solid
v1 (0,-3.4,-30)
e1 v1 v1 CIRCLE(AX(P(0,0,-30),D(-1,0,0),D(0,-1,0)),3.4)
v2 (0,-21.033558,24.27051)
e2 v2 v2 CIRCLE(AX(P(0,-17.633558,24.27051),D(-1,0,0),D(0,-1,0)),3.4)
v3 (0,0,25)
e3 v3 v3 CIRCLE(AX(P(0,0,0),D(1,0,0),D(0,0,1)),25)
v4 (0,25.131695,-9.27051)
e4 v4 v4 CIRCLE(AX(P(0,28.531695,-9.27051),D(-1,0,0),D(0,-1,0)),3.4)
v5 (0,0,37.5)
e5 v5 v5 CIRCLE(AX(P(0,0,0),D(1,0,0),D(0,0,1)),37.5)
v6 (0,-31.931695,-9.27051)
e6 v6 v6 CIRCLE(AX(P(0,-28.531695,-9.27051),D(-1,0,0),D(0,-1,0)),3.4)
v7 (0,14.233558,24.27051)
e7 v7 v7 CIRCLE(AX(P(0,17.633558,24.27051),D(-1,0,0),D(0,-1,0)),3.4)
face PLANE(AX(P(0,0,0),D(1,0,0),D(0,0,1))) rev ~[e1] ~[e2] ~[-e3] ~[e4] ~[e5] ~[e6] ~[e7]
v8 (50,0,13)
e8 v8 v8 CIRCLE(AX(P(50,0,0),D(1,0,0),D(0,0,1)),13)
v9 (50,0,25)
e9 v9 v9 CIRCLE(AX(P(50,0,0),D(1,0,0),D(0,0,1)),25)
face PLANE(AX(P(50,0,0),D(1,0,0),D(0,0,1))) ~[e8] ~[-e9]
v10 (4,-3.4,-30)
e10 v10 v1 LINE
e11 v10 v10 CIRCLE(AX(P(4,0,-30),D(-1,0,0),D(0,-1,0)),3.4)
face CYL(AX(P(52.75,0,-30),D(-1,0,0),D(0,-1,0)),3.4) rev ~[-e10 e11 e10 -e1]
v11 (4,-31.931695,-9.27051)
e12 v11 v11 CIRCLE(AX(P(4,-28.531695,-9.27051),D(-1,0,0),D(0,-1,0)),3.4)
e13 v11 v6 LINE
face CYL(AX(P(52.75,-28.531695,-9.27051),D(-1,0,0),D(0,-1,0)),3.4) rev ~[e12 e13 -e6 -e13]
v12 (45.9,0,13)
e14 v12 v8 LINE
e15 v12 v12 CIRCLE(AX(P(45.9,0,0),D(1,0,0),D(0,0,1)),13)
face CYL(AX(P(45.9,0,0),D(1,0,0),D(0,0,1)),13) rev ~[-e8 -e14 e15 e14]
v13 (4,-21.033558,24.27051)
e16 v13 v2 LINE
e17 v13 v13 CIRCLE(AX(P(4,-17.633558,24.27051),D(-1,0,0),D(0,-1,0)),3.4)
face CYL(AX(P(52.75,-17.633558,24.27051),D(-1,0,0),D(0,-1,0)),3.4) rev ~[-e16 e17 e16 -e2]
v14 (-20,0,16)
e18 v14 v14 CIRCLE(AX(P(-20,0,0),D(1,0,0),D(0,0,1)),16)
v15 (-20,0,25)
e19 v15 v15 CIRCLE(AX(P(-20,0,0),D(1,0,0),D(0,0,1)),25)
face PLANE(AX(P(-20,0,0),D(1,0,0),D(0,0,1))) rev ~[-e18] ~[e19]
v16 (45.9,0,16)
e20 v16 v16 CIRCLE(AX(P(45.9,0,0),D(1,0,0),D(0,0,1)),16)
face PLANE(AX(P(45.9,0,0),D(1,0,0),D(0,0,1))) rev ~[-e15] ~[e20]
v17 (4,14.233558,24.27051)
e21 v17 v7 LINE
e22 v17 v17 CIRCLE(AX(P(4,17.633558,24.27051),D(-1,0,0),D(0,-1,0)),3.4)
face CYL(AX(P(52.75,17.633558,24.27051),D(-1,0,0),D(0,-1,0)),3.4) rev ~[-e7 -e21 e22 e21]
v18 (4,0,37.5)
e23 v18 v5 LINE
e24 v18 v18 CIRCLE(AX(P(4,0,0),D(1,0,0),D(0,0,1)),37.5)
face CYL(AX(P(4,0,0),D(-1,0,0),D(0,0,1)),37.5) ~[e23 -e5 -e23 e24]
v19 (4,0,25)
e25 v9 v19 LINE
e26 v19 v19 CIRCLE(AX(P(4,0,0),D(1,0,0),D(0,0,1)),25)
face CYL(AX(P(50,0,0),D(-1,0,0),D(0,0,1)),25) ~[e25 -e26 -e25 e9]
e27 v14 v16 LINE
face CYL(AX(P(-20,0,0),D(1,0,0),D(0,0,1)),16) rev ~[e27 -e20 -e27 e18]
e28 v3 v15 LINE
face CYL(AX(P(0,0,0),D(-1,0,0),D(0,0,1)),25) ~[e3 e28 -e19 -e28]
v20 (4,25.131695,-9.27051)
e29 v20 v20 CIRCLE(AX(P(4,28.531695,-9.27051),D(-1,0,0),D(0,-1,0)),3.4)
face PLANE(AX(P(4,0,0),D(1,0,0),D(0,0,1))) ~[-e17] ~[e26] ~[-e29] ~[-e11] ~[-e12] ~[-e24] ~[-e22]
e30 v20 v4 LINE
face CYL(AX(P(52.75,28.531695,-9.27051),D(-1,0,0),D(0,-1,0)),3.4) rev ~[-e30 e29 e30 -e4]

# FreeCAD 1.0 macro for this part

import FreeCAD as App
import Part
import Sketcher

V = App.Vector
Q = App.Units.Quantity

doc = App.newDocument("Part")
body = doc.addObject("PartDesign::Body", "Body")

sketch1 = body.newObject("Sketcher::SketchObject", "Sketch")
sketch1.AttachmentSupport = (doc.getObject("XZ_Plane"), [""])
sketch1.MapMode = "FlatFace"
sketch1.addGeometry([
    Part.LineSegment(V(4, 37.5, 0), V(0, 37.5, 0)),
    Part.LineSegment(V(0, 37.5, 0), V(0, 25, 0)),
    Part.LineSegment(V(0, 25, 0), V(-20, 25, 0)),
    Part.LineSegment(V(-20, 25, 0), V(-20, 16, 0)),
    Part.LineSegment(V(-20, 16, 0), V(45.9, 16, 0)),
    Part.LineSegment(V(45.9, 16, 0), V(45.9, 13, 0)),
    Part.LineSegment(V(45.9, 13, 0), V(50, 13, 0)),
    Part.LineSegment(V(50, 13, 0), V(50, 25, 0)),
    Part.LineSegment(V(50, 25, 0), V(4, 25, 0)),
    Part.LineSegment(V(4, 25, 0), V(4, 37.5, 0)),
], False)
sketch1.addConstraint([
    Sketcher.Constraint("Coincident", 0, 2, 1, 1),
    Sketcher.Constraint("Coincident", 1, 2, 2, 1),
    Sketcher.Constraint("Coincident", 2, 2, 3, 1),
    Sketcher.Constraint("Coincident", 3, 2, 4, 1),
    Sketcher.Constraint("Coincident", 4, 2, 5, 1),
    Sketcher.Constraint("Coincident", 5, 2, 6, 1),
    Sketcher.Constraint("Coincident", 6, 2, 7, 1),
    Sketcher.Constraint("Coincident", 7, 2, 8, 1),
    Sketcher.Constraint("Coincident", 8, 2, 9, 1),
    Sketcher.Constraint("Coincident", 9, 2, 0, 1),
    Sketcher.Constraint("Horizontal", 0),
    Sketcher.Constraint("Vertical", 1),
    Sketcher.Constraint("Horizontal", 2),
    Sketcher.Constraint("Vertical", 3),
    Sketcher.Constraint("Horizontal", 4),
    Sketcher.Constraint("Vertical", 5),
    Sketcher.Constraint("Horizontal", 6),
    Sketcher.Constraint("Vertical", 7),
    Sketcher.Constraint("Horizontal", 8),
    Sketcher.Constraint("Vertical", 9),
    Sketcher.Constraint("PointOnObject", 0, 2, -2),
    Sketcher.Constraint("Horizontal", 2, 2, 7, 2),
    Sketcher.Constraint("DistanceX", 0, 2, 0, 1, Q("4 mm")),
    Sketcher.Constraint("DistanceX", 2, 2, 2, 1, Q("20 mm")),
    Sketcher.Constraint("DistanceX", 8, 2, 8, 1, Q("46 mm")),
    Sketcher.Constraint("DistanceY", 3, 2, 3, 1, Q("9 mm")),
    Sketcher.Constraint("DistanceY", 5, 2, 5, 1, Q("3 mm")),
    Sketcher.Constraint("DistanceX", 4, 1, 4, 2, Q("65.9 mm")),
    Sketcher.Constraint("DistanceY", 1, 2, 1, 1, Q("12.5 mm")),
    Sketcher.Constraint("DistanceY", -1, 1, 1, 2, Q("25 mm")),
])
revolution = body.newObject("PartDesign::Revolution", "Revolution")
revolution.Profile = sketch1
revolution.ReferenceAxis = (sketch1, ["H_Axis"])
revolution.Angle = 360

sketch2 = body.newObject("Sketcher::SketchObject", "Sketch001")
sketch2.AttachmentSupport = (doc.getObject("YZ_Plane"), [""])
sketch2.MapMode = "FlatFace"
sketch2.AttachmentOffset = App.Placement(V(0, 0, 4), App.Rotation())
sketch2.addGeometry([
    Part.Circle(V(0, -30, 0), V(0, 0, 1), 3.4),
    Part.Circle(V(-28.5, -9.3, 0), V(0, 0, 1), 3.4),
    Part.Circle(V(17.6, 24.3, 0), V(0, 0, 1), 3.4),
    Part.Circle(V(-17.6, 24.3, 0), V(0, 0, 1), 3.4),
    Part.Circle(V(28.5, -9.3, 0), V(0, 0, 1), 3.4),
], False)
sketch2.addConstraint([
    Sketcher.Constraint("Equal", 0, 1),
    Sketcher.Constraint("Equal", 1, 2),
    Sketcher.Constraint("Equal", 2, 3),
    Sketcher.Constraint("Equal", 3, 4),
    Sketcher.Constraint("Symmetric", 2, 3, 3, 3, -2),
    Sketcher.Constraint("Symmetric", 1, 3, 4, 3, -2),
    Sketcher.Constraint("PointOnObject", 0, 3, -2),
    Sketcher.Constraint("Diameter", 0, Q("6.8 mm")),
    Sketcher.Constraint("DistanceY", 0, 3, -1, 1, Q("30 mm")),
    Sketcher.Constraint("DistanceY", 1, 3, -1, 1, Q("9.27051 mm")),
    Sketcher.Constraint("DistanceY", -1, 1, 2, 3, Q("24.27051 mm")),
    Sketcher.Constraint("DistanceX", 1, 3, 4, 3, Q("57.063391 mm")),
    Sketcher.Constraint("DistanceX", -1, 1, 2, 3, Q("17.633558 mm")),
])
doc.recompute()
hole = body.newObject("PartDesign::Hole", "Hole")
hole.Profile = sketch2
hole.ThreadType = "None"
hole.Diameter = 6.8
hole.DepthType = "Dimension"
hole.Depth = 48.75
hole.DrillPoint = "Angled"
hole.DrillPointAngle = 118

doc.recompute()
